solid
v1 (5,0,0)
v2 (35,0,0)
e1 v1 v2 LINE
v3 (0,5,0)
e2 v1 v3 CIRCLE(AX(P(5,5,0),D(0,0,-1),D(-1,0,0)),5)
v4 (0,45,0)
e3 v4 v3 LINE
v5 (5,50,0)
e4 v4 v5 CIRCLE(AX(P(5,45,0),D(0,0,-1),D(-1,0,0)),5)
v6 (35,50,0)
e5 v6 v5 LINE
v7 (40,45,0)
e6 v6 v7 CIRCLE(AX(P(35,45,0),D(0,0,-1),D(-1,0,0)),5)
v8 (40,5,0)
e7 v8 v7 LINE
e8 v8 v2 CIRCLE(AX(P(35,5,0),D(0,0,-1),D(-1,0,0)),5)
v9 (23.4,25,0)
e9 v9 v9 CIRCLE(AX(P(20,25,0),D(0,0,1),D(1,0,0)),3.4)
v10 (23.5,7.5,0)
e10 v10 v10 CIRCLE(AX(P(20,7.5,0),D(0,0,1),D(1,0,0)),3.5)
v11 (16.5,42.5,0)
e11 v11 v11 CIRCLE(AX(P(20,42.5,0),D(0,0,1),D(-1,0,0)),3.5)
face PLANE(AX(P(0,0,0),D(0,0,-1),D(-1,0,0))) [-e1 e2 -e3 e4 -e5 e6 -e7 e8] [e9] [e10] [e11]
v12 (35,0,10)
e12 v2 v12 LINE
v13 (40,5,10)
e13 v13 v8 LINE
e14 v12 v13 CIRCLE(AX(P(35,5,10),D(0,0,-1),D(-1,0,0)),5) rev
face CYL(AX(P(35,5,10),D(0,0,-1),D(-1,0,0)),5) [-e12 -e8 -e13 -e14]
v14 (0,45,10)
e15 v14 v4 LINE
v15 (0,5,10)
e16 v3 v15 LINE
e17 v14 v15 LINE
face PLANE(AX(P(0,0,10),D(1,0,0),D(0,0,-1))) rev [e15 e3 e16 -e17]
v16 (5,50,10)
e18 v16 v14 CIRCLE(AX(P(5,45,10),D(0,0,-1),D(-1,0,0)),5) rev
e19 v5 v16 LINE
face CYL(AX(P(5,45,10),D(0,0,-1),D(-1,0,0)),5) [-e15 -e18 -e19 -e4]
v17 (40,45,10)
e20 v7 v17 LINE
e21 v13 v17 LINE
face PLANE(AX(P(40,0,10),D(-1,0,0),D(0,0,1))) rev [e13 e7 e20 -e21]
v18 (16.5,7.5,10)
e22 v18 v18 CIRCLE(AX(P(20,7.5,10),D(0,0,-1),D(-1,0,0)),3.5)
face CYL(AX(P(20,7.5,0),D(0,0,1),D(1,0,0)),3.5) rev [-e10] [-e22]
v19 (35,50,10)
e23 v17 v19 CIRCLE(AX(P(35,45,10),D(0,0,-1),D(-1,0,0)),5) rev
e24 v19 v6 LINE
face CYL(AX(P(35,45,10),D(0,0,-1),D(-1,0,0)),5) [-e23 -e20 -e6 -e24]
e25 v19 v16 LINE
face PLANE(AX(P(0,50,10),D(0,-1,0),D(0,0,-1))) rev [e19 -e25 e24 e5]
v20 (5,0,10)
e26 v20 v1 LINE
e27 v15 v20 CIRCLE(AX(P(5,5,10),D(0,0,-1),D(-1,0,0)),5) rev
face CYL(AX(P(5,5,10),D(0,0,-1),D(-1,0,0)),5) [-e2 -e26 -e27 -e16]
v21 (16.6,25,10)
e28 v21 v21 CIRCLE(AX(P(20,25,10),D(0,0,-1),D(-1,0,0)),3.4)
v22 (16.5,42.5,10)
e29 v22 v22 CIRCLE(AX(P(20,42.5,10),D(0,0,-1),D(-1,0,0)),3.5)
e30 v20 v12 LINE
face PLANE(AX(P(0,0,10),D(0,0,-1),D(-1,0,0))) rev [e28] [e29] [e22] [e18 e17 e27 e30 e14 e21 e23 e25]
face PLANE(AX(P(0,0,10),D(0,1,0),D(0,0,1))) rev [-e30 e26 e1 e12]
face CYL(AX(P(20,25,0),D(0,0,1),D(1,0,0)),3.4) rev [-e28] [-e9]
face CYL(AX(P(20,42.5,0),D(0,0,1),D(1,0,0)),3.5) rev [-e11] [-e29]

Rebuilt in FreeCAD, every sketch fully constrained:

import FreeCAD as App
import Part
import Sketcher
from FreeCAD import Vector
Q = App.Units.Quantity


def edges_at(feature, points):
    """Names of the edges that pass closest to the given points."""
    edges = feature.Shape.Edges
    near = lambda p: min(range(len(edges)), key=lambda i: edges[i].distToShape(Part.Vertex(*p))[0])
    return sorted({f"Edge{near(p) + 1}" for p in points})


def add_polygon(sketch, points):
    """Adds a closed chain of lines whose ends are joined by coincident constraints."""
    first, n = sketch.GeometryCount, len(points)
    for a, b in zip(points, points[1:] + points[:1]):
        sketch.addGeometry(Part.LineSegment(App.Vector(*a, 0), App.Vector(*b, 0)), False)
    for i in range(n):
        sketch.addConstraint(Sketcher.Constraint("Coincident", first + i, 2, first + (i + 1) % n, 1))

doc = App.newDocument("Part")
body = doc.addObject("PartDesign::Body", "Body")

# Sketch on XY plane
sketch1 = body.newObject("Sketcher::SketchObject", "Sketch")
sketch1.AttachmentSupport = (doc.getObject("XY_Plane"), [""])
sketch1.MapMode = "FlatFace"
add_polygon(sketch1, [(0, 50), (0, 0), (40, 0), (40, 50)])  # lines 0-3
sketch1.addConstraint([
    Sketcher.Constraint("Vertical", 0),
    Sketcher.Constraint("Horizontal", 1),
    Sketcher.Constraint("Vertical", 2),
    Sketcher.Constraint("Horizontal", 3),
    Sketcher.Constraint("Coincident", 0, 2, -1, 1),
    Sketcher.Constraint("DistanceX", 1, 1, 1, 2, Q("40 mm")),
    Sketcher.Constraint("DistanceY", 0, 2, 0, 1, Q("50 mm")),
])
pad1 = body.newObject("PartDesign::Pad", "Pad")
pad1.Profile = sketch1
pad1.Length = 10

# Sketch on XY plane
sketch2 = body.newObject("Sketcher::SketchObject", "Sketch001")
sketch2.AttachmentSupport = (doc.getObject("XY_Plane"), [""])
sketch2.MapMode = "FlatFace"
sketch2.AttachmentOffset = App.Placement(Vector(0, 0, 10), App.Rotation())
sketch2.addGeometry([
    Part.Circle(Vector(20, 25, 0), Vector(0, 0, 1), 3.4),
    Part.Circle(Vector(20, 7.5, 0), Vector(0, 0, 1), 3.5),
    Part.Circle(Vector(20, 42.5, 0), Vector(0, 0, 1), 3.5),
], False)
sketch2.addConstraint([
    Sketcher.Constraint("Equal", 1, 2),
    Sketcher.Constraint("Vertical", 0, 3, 1, 3),
    Sketcher.Constraint("Vertical", 1, 3, 2, 3),
    Sketcher.Constraint("Diameter", 1, Q("7 mm")),
    Sketcher.Constraint("Diameter", 0, Q("6.8 mm")),
    Sketcher.Constraint("DistanceX", -1, 1, 0, 3, Q("20 mm")),
    Sketcher.Constraint("DistanceY", -1, 1, 0, 3, Q("25 mm")),
    Sketcher.Constraint("DistanceY", 1, 3, 2, 3, Q("35 mm")),
    Sketcher.Constraint("DistanceY", -1, 1, 1, 3, Q("7.5 mm")),
])
pocket1 = body.newObject("PartDesign::Pocket", "Pocket")
pocket1.Profile = sketch2
pocket1.Type = "ThroughAll"
pocket1.Midplane = True
doc.recompute()

fillet = body.newObject("PartDesign::Fillet", "Fillet")
fillet.Base = (pocket1, edges_at(pocket1, [
    (0, 50, 5),
    (40, 50, 5),
    (40, 0, 5),
    (0, 0, 5),
]))
fillet.Radius = 5

doc.recompute()
